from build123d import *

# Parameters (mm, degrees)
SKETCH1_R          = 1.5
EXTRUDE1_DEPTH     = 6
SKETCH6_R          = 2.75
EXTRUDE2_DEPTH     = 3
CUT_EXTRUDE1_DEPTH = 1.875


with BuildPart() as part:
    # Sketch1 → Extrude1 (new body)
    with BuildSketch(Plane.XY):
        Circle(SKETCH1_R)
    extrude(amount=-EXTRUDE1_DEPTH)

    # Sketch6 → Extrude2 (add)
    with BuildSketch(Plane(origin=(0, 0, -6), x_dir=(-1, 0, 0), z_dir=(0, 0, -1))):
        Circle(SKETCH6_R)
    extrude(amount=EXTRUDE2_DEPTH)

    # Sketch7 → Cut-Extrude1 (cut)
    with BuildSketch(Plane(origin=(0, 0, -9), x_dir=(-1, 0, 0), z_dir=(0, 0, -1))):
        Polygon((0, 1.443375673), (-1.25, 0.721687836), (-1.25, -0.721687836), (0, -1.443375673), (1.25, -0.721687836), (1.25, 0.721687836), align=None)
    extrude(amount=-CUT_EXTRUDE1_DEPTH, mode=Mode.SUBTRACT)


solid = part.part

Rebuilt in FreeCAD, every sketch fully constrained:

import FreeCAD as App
import Part
import Sketcher
Q = App.Units.Quantity

doc = App.newDocument("Part")
body = doc.addObject("PartDesign::Body", "Body")

# Sketch on XY plane
sketch1 = doc.addObject("Sketcher::SketchObject", "Sketch")
body.addObject(sketch1)
sketch1.AttachmentSupport = (doc.XY_Plane, [""])
sketch1.MapMode = "FlatFace"
sketch1.addGeometry(Part.Circle(App.Vector(0, 0, 0), App.Vector(0, 0, 1), 1.5), False)
sketch1.addConstraint([
    Sketcher.Constraint("Coincident", 0, 3, -1, 1),
    Sketcher.Constraint("Diameter", 0, Q("3 mm")),
])
pad1 = doc.addObject("PartDesign::Pad", "Pad")
body.addObject(pad1)
pad1.Profile = sketch1
pad1.Length = 6
pad1.Reversed = True

# Sketch on XY plane
sketch2 = doc.addObject("Sketcher::SketchObject", "Sketch001")
body.addObject(sketch2)
sketch2.AttachmentSupport = (doc.XY_Plane, [""])
sketch2.MapMode = "FlatFace"
sketch2.AttachmentOffset = App.Placement(App.Vector(0, 0, -6), App.Rotation())
sketch2.addGeometry(Part.Circle(App.Vector(0, 0, 0), App.Vector(0, 0, 1), 2.75), False)
sketch2.addConstraint([
    Sketcher.Constraint("Coincident", 0, 3, -1, 1),
    Sketcher.Constraint("Diameter", 0, Q("5.5 mm")),
])
pad2 = doc.addObject("PartDesign::Pad", "Pad001")
body.addObject(pad2)
pad2.Profile = sketch2
pad2.Length = 3
pad2.Reversed = True

# Sketch on XY plane
sketch3 = doc.addObject("Sketcher::SketchObject", "Sketch002")
body.addObject(sketch3)
sketch3.AttachmentSupport = (doc.XY_Plane, [""])
sketch3.MapMode = "FlatFace"
sketch3.AttachmentOffset = App.Placement(App.Vector(0, 0, -9), App.Rotation())
sketch3.addGeometry([
    Part.LineSegment(App.Vector(0, 1.443376, 0), App.Vector(1.25, 0.721688, 0)),  # 0
    Part.LineSegment(App.Vector(1.25, 0.721688, 0), App.Vector(1.25, -0.721688, 0)),  # 1
    Part.LineSegment(App.Vector(1.25, -0.721688, 0), App.Vector(0, -1.443376, 0)),  # 2
    Part.LineSegment(App.Vector(0, -1.443376, 0), App.Vector(-1.25, -0.721688, 0)),  # 3
    Part.LineSegment(App.Vector(-1.25, -0.721688, 0), App.Vector(-1.25, 0.721688, 0)),  # 4
    Part.LineSegment(App.Vector(-1.25, 0.721688, 0), App.Vector(0, 1.443376, 0)),  # 5
], False)
sketch3.addConstraint([
    Sketcher.Constraint("Coincident", 0, 2, 1, 1),
    Sketcher.Constraint("Coincident", 1, 2, 2, 1),
    Sketcher.Constraint("Coincident", 2, 2, 3, 1),
    Sketcher.Constraint("Coincident", 3, 2, 4, 1),
    Sketcher.Constraint("Coincident", 4, 2, 5, 1),
    Sketcher.Constraint("Coincident", 5, 2, 0, 1),
    Sketcher.Constraint("Vertical", 1),
    Sketcher.Constraint("Vertical", 4),
    Sketcher.Constraint("Symmetric", 0, 2, 3, 2, -1, 1),
    Sketcher.Constraint("Symmetric", 2, 2, 5, 2, -1, 1),
    Sketcher.Constraint("PointOnObject", 2, 2, -2),
    Sketcher.Constraint("Parallel", 2, 5),
    Sketcher.Constraint("Horizontal", 1, 2, 3, 2),
    Sketcher.Constraint("Angle", 0, Q("-30 deg")),
    Sketcher.Constraint("DistanceX", 3, 2, 1, 2, Q("2.5 mm")),
    Sketcher.Constraint("DistanceY", 1, 2, 1, 1, Q("1.443376 mm")),
])
pocket1 = doc.addObject("PartDesign::Pocket", "Pocket")
body.addObject(pocket1)
pocket1.Profile = sketch3
pocket1.Length = 1.875
pocket1.Reversed = True

doc.recompute()
